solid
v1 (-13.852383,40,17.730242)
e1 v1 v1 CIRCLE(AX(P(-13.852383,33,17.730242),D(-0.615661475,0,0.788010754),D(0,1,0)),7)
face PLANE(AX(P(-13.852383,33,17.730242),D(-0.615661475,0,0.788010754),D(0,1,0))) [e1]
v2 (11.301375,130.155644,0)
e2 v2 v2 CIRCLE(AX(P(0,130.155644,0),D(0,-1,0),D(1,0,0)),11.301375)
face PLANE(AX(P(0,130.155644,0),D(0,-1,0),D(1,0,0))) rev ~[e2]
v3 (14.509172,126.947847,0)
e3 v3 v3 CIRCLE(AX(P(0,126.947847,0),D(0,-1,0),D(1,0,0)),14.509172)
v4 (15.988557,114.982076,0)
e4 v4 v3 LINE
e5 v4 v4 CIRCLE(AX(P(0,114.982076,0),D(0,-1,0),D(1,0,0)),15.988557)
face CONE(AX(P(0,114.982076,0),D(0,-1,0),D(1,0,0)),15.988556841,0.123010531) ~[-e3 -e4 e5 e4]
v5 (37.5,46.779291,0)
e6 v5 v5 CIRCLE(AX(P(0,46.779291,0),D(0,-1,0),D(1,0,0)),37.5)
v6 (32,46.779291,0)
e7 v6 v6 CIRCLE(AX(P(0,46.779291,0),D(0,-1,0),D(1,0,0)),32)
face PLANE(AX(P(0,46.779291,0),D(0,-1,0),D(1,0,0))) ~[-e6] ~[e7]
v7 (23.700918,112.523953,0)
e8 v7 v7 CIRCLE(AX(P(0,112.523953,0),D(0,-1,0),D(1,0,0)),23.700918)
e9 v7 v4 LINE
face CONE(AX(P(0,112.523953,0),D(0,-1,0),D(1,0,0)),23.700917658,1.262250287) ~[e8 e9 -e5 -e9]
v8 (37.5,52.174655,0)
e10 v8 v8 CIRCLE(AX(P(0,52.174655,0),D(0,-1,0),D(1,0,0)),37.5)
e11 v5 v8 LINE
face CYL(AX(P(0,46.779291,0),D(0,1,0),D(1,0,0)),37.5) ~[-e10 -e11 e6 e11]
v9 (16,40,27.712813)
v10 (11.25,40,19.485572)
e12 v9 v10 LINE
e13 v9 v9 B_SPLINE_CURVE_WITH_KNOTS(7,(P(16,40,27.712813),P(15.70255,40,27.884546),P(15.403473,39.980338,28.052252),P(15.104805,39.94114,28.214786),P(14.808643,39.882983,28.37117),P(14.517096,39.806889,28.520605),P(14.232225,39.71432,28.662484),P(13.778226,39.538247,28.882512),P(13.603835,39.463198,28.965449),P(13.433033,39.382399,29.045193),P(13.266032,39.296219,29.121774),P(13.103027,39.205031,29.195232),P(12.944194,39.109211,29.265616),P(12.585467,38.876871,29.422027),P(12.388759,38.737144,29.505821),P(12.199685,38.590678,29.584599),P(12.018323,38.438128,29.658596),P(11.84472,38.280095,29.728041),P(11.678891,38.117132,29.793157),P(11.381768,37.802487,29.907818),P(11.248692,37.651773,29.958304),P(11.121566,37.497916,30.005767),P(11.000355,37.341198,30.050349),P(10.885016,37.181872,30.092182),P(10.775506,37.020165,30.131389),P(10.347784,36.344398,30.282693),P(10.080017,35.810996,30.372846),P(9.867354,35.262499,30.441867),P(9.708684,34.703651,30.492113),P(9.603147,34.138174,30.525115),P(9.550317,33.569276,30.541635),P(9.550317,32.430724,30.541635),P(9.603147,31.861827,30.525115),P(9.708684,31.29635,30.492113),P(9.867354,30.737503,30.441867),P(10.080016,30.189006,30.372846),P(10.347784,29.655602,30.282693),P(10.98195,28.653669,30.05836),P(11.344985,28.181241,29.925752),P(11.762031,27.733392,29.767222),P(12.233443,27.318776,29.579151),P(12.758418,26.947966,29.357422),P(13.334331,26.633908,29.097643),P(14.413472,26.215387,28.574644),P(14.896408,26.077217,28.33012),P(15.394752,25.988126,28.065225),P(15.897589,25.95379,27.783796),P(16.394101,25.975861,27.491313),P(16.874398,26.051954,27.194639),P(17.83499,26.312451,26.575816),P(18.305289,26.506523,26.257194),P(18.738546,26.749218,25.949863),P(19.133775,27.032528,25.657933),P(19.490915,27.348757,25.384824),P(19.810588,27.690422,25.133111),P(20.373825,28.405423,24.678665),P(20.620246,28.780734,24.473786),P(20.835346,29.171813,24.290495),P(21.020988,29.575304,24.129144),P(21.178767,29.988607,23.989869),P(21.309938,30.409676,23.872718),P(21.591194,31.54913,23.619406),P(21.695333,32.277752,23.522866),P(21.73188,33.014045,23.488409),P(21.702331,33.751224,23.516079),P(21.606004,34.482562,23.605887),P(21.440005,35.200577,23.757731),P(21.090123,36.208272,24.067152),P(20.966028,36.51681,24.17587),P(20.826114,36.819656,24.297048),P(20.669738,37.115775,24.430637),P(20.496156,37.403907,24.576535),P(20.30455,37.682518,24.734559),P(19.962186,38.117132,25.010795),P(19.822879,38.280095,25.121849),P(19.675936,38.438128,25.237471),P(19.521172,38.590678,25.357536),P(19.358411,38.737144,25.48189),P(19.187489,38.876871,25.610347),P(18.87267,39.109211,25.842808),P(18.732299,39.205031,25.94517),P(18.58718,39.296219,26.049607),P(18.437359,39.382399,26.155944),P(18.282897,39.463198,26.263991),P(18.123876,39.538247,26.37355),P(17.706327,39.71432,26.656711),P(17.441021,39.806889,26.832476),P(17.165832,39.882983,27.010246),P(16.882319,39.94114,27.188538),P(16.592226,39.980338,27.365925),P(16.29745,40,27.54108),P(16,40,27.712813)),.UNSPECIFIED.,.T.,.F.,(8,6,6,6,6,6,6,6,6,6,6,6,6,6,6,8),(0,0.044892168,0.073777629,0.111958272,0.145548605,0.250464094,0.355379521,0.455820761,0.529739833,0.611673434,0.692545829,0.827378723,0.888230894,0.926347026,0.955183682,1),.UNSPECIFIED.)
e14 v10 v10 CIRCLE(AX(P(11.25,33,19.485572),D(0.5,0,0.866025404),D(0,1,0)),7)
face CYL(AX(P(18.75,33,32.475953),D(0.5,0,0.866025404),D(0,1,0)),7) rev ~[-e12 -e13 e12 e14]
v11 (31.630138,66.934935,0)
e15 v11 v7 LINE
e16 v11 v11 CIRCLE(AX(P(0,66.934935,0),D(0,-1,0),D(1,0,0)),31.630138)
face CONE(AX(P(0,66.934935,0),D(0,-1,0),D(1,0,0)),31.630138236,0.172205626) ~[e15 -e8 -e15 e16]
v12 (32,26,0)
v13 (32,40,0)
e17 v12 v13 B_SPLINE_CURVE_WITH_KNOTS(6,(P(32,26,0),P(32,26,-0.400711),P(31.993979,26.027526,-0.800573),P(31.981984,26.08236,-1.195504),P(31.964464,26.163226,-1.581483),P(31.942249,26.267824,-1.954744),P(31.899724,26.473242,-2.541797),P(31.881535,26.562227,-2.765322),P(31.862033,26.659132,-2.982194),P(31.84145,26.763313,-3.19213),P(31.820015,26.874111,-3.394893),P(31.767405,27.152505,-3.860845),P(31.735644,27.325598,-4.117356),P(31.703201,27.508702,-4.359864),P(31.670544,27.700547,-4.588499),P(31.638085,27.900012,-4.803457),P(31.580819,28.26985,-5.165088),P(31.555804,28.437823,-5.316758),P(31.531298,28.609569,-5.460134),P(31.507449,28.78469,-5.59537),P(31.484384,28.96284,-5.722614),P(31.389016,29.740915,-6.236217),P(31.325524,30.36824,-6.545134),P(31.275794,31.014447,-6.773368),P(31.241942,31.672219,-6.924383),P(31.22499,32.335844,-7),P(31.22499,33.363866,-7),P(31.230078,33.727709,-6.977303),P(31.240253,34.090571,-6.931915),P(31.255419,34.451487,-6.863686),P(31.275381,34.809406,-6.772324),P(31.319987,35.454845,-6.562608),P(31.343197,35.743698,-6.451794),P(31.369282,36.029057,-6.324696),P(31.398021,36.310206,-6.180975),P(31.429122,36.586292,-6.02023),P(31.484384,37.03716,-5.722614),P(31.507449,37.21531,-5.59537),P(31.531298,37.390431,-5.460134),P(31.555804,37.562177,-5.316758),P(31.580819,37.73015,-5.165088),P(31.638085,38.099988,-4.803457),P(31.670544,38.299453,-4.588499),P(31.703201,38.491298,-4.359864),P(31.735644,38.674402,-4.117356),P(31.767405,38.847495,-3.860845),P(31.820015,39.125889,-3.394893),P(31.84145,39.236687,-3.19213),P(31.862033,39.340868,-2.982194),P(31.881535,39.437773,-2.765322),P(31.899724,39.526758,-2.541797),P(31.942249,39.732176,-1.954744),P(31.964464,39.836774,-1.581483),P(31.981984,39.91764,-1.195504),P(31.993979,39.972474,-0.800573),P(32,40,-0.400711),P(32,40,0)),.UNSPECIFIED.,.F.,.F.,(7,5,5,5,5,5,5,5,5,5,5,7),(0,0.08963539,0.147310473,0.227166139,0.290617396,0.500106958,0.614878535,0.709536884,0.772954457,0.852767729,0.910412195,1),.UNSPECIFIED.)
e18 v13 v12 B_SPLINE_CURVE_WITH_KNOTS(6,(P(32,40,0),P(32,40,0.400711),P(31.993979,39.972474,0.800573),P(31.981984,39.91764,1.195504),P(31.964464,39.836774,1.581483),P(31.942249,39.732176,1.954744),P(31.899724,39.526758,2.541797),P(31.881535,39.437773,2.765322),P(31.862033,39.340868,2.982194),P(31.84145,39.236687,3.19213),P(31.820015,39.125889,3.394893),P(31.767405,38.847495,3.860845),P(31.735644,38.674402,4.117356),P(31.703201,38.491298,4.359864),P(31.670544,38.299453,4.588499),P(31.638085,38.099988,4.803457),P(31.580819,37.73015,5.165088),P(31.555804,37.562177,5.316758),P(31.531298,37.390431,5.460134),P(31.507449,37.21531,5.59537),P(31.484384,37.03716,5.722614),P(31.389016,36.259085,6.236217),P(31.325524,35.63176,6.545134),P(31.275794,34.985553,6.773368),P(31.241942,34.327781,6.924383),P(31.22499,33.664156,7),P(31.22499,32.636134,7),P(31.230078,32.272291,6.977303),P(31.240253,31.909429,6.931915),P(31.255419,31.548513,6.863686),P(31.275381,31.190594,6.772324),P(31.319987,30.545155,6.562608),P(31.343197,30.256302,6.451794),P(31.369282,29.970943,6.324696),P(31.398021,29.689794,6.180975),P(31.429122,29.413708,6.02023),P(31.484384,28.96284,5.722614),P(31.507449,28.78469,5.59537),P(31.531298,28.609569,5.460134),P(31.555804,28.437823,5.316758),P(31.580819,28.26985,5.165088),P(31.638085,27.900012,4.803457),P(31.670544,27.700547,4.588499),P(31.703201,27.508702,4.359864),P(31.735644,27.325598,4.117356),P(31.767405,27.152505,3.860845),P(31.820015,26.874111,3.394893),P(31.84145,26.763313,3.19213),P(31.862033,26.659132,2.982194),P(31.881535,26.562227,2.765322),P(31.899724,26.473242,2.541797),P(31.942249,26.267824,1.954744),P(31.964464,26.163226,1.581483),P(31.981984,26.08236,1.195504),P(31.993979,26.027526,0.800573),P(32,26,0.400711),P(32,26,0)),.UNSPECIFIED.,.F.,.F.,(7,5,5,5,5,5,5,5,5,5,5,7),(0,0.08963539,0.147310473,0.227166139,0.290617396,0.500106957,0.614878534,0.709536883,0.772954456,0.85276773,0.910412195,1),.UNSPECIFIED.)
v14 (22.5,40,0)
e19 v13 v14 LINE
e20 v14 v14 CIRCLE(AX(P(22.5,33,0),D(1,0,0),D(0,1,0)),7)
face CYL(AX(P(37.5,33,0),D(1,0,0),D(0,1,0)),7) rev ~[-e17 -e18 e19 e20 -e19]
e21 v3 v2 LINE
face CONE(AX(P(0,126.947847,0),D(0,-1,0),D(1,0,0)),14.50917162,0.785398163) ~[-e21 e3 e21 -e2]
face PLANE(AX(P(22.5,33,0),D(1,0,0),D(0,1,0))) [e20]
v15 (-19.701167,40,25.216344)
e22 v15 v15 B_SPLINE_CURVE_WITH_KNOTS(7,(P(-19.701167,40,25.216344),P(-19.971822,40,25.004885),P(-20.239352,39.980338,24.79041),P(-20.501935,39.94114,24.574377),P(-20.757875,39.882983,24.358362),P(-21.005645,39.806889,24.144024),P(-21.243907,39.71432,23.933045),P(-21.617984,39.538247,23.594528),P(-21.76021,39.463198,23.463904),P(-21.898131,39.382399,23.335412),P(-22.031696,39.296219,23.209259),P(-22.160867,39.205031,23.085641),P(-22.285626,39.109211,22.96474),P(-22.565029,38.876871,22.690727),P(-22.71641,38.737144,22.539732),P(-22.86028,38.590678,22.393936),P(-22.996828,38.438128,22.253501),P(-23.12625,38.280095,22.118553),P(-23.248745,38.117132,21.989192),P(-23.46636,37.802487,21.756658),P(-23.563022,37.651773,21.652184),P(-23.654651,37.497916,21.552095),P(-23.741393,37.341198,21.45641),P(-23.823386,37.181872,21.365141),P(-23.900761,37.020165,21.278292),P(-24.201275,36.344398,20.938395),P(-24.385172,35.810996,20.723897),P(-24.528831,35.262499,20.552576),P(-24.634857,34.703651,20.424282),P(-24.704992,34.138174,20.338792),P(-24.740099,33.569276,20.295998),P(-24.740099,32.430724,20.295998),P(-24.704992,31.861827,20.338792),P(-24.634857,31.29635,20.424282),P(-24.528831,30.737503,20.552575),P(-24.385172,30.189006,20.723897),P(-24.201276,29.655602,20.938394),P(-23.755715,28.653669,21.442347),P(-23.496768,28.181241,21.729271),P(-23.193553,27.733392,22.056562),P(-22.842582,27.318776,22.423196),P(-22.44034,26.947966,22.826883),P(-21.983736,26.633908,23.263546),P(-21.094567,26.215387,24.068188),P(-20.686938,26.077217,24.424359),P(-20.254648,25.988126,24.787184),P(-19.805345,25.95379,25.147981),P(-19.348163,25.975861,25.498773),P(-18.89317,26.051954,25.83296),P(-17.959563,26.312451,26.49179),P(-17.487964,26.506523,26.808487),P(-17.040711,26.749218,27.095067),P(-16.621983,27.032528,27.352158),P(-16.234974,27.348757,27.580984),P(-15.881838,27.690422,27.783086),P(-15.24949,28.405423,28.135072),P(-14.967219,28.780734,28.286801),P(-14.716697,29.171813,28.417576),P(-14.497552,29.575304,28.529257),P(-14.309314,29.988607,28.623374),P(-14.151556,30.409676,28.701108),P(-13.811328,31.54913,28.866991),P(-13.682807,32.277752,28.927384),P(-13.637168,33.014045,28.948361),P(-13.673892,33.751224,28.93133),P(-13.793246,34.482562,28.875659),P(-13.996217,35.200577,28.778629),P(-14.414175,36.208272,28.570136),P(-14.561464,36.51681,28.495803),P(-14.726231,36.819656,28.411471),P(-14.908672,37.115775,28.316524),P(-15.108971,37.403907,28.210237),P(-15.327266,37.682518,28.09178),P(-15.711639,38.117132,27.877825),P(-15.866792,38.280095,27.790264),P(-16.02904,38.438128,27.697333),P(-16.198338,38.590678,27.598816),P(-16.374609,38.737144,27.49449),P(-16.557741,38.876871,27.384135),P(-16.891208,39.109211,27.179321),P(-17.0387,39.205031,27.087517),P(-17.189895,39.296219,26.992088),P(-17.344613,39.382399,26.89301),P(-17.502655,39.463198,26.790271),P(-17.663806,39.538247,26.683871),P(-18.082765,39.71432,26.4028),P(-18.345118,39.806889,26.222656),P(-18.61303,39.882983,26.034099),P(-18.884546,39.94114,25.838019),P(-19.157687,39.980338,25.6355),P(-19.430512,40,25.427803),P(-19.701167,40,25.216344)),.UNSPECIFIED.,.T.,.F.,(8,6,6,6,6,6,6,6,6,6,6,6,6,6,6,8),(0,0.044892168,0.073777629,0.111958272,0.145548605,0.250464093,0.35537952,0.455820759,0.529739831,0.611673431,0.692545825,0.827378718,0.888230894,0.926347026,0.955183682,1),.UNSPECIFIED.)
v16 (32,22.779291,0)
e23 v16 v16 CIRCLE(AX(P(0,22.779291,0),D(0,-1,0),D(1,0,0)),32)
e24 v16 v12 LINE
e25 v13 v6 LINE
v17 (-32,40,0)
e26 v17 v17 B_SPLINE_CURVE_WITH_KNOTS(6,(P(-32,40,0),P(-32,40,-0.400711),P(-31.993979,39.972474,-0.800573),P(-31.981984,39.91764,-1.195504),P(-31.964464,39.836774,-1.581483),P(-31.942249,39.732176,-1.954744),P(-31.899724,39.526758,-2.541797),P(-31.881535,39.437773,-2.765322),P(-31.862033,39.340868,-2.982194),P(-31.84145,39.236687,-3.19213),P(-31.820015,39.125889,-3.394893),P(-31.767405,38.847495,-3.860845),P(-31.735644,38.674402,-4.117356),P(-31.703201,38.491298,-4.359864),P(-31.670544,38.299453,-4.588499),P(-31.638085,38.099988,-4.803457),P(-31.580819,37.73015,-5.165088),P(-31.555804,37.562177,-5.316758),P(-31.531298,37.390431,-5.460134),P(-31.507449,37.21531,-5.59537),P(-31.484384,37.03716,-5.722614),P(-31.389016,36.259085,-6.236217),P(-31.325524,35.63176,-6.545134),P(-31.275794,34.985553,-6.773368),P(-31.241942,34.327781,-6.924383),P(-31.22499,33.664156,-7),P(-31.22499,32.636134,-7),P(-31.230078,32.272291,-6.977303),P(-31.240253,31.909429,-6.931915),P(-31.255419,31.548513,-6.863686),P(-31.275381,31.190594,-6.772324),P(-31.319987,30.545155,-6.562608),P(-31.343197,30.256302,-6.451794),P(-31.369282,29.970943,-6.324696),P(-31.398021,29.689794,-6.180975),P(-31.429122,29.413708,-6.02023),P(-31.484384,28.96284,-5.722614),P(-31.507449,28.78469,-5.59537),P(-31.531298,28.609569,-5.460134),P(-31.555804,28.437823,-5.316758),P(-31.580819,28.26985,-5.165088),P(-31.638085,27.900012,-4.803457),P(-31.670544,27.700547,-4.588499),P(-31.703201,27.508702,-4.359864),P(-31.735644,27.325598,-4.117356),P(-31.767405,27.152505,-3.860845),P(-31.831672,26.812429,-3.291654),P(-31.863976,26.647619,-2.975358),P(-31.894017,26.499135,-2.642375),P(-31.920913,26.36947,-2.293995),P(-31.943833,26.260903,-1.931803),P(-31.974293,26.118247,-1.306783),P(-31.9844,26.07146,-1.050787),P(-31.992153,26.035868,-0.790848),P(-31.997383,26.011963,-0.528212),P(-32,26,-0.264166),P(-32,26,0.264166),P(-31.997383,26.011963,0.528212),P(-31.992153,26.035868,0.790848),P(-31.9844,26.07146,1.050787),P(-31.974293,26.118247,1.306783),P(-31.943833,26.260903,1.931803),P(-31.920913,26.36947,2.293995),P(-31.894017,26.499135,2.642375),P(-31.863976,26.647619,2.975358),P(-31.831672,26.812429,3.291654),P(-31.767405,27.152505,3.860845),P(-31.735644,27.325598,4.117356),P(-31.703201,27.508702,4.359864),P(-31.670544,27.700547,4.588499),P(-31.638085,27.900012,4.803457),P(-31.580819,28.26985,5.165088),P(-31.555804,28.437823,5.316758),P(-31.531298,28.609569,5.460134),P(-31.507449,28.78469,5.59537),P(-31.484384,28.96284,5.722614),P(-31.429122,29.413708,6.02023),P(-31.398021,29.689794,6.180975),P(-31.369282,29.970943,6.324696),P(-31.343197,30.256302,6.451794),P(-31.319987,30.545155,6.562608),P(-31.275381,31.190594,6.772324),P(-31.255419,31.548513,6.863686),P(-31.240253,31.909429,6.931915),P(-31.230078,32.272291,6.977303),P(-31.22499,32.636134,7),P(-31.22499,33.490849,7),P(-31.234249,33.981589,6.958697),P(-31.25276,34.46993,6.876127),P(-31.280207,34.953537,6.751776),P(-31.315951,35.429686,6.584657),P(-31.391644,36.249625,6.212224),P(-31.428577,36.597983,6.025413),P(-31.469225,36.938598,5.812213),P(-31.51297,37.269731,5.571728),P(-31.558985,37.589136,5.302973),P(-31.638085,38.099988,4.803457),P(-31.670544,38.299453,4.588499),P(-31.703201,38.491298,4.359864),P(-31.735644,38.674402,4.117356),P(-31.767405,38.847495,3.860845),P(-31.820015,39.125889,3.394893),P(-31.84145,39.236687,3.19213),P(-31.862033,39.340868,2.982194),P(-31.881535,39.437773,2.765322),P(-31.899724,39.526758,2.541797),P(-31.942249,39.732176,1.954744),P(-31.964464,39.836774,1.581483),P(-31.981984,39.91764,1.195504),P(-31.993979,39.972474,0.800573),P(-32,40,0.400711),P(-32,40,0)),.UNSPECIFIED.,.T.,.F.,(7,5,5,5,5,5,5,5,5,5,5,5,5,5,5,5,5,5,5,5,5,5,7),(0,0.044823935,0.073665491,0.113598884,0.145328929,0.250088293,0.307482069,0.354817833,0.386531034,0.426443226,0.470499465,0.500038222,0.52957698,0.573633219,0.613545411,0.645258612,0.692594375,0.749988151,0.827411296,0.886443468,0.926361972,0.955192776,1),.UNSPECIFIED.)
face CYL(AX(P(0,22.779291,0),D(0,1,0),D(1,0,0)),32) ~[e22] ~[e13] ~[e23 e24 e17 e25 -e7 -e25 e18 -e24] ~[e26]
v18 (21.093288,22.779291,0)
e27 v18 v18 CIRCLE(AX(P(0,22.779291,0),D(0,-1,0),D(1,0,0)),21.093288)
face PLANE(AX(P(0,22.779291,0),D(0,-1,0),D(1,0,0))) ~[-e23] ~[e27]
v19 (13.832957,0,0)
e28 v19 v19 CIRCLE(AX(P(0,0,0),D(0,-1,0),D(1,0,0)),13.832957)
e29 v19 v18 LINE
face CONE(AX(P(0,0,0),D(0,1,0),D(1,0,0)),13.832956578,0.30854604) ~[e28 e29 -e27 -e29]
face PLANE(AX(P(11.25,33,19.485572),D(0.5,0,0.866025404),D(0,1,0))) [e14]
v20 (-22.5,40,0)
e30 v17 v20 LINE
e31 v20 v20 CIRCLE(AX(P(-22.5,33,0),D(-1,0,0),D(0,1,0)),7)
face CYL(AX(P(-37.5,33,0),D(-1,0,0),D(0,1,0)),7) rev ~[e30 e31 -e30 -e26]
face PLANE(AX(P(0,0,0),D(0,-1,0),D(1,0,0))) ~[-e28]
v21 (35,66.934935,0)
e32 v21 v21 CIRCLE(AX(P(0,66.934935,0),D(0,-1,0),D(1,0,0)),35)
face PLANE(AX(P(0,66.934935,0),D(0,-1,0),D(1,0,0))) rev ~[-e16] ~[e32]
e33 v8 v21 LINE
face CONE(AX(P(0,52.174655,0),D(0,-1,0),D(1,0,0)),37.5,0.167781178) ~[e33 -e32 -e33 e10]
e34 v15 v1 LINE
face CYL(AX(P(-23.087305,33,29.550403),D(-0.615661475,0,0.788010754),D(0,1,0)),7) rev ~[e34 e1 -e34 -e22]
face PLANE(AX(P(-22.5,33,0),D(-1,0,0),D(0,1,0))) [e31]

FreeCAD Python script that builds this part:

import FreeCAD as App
import Part
import Sketcher
Q = App.Units.Quantity

doc = App.newDocument("Part")
body = doc.addObject("PartDesign::Body", "Body")

# Sketch on XY plane
sketch1 = body.newObject("Sketcher::SketchObject", "Sketch")
sketch1.AttachmentSupport = (doc.getObject("XY_Plane"), [""])
sketch1.MapMode = "FlatFace"
sketch1.addGeometry([
    Part.LineSegment(App.Vector(0, 0, 0), App.Vector(13.8, 0, 0)),  # 0
    Part.LineSegment(App.Vector(13.8, 0, 0), App.Vector(21.1, 22.8, 0)),  # 1
    Part.LineSegment(App.Vector(21.1, 22.8, 0), App.Vector(32, 22.8, 0)),  # 2
    Part.LineSegment(App.Vector(32, 22.8, 0), App.Vector(32, 46.8, 0)),  # 3
    Part.LineSegment(App.Vector(32, 46.8, 0), App.Vector(37.5, 46.8, 0)),  # 4
    Part.LineSegment(App.Vector(37.5, 46.8, 0), App.Vector(37.5, 52.2, 0)),  # 5
    Part.LineSegment(App.Vector(37.5, 52.2, 0), App.Vector(35, 66.9, 0)),  # 6
    Part.LineSegment(App.Vector(35, 66.9, 0), App.Vector(31.6, 66.9, 0)),  # 7
    Part.LineSegment(App.Vector(31.6, 66.9, 0), App.Vector(23.7, 112.5, 0)),  # 8
    Part.LineSegment(App.Vector(23.7, 112.5, 0), App.Vector(16, 115, 0)),  # 9
    Part.LineSegment(App.Vector(16, 115, 0), App.Vector(14.5, 126.9, 0)),  # 10
    Part.LineSegment(App.Vector(14.5, 126.9, 0), App.Vector(11.3, 130.2, 0)),  # 11
    Part.LineSegment(App.Vector(11.3, 130.2, 0), App.Vector(0, 130.2, 0)),  # 12
    Part.LineSegment(App.Vector(0, 130.2, 0), App.Vector(0, 0, 0)),  # 13
], False)
sketch1.addConstraint([
    Sketcher.Constraint("Coincident", 0, 2, 1, 1),
    Sketcher.Constraint("Coincident", 1, 2, 2, 1),
    Sketcher.Constraint("Coincident", 2, 2, 3, 1),
    Sketcher.Constraint("Coincident", 3, 2, 4, 1),
    Sketcher.Constraint("Coincident", 4, 2, 5, 1),
    Sketcher.Constraint("Coincident", 5, 2, 6, 1),
    Sketcher.Constraint("Coincident", 6, 2, 7, 1),
    Sketcher.Constraint("Coincident", 7, 2, 8, 1),
    Sketcher.Constraint("Coincident", 8, 2, 9, 1),
    Sketcher.Constraint("Coincident", 9, 2, 10, 1),
    Sketcher.Constraint("Coincident", 10, 2, 11, 1),
    Sketcher.Constraint("Coincident", 11, 2, 12, 1),
    Sketcher.Constraint("Coincident", 12, 2, 13, 1),
    Sketcher.Constraint("Coincident", 13, 2, 0, 1),
    Sketcher.Constraint("Horizontal", 0),
    Sketcher.Constraint("Horizontal", 2),
    Sketcher.Constraint("Vertical", 3),
    Sketcher.Constraint("Horizontal", 4),
    Sketcher.Constraint("Vertical", 5),
    Sketcher.Constraint("Horizontal", 7),
    Sketcher.Constraint("Horizontal", 12),
    Sketcher.Constraint("Vertical", 13),
    Sketcher.Constraint("Coincident", 13, 2, -1, 1),
    Sketcher.Constraint("Perpendicular", 1, 9),
    Sketcher.Constraint("DistanceY", 3, 1, 3, 2, 24.0),
    Sketcher.Constraint("Angle", 11, Q("135 deg")),
    Sketcher.Constraint("DistanceX", 4, 1, 4, 2, 5.5),
    Sketcher.Constraint("DistanceX", -1, 1, 2, 2, 32.0),
    Sketcher.Constraint("DistanceX", -1, 1, 6, 2, 35.0),
    Sketcher.Constraint("Distance", 6, 14.970499),
    Sketcher.Constraint("DistanceX", 2, 1, 2, 2, 10.906712),
    Sketcher.Constraint("DistanceX", 7, 2, 7, 1, 3.369862),
    Sketcher.Constraint("Distance", 8, 46.273439),
    Sketcher.Constraint("Distance", 9, 8.09462),
    Sketcher.Constraint("Distance", 11, 4.53651),
    Sketcher.Constraint("DistanceX", 0, 1, 0, 2, 13.832957),
    Sketcher.Constraint("DistanceX", 12, 2, 12, 1, 11.301375),
    Sketcher.Constraint("DistanceY", 5, 1, 5, 2, 5.395365),
    Sketcher.Constraint("DistanceY", 13, 2, 13, 1, 130.155644),
    Sketcher.Constraint("DistanceY", -1, 1, 1, 2, 22.779291),
    Sketcher.Constraint("DistanceX", 8, 2, 7, 2, 7.929221),
])
revolution = body.newObject("PartDesign::Revolution", "Revolution")
revolution.Profile = sketch1
revolution.ReferenceAxis = (sketch1, ["V_Axis"])
revolution.Angle = 360

# Sketch on YZ plane
sketch2 = body.newObject("Sketcher::SketchObject", "Sketch001")
sketch2.AttachmentSupport = (doc.getObject("YZ_Plane"), [""])
sketch2.MapMode = "FlatFace"
sketch2.AttachmentOffset = App.Placement(App.Vector(0, 0, -37.5), App.Rotation())
sketch2.addGeometry(Part.Circle(App.Vector(33, 0, 0), App.Vector(0, 0, 1), 7), False)
sketch2.addConstraint([
    Sketcher.Constraint("PointOnObject", 0, 3, -1),
    Sketcher.Constraint("Diameter", 0, 14.0),
    Sketcher.Constraint("DistanceX", -1, 1, 0, 3, 33.0),
])
pocket1 = body.newObject("PartDesign::Pocket", "Pocket")
pocket1.Profile = sketch2
pocket1.Length = 15
pocket1.Reversed = True

# Sketch on an angled plane
sketch3 = body.newObject("Sketcher::SketchObject", "Sketch002")
sketch3.Placement = App.Placement(App.Vector(18.75, 0, 32.475953), App.Rotation(App.Vector(0, 1, 0), App.Vector(-0.866025404, 0, 0.5), App.Vector(0.5, 0, 0.866025404), "ZXY"))
sketch3.addGeometry(Part.Circle(App.Vector(33, 0, 0), App.Vector(0, 0, 1), 7), False)
sketch3.addConstraint([
    Sketcher.Constraint("PointOnObject", 0, 3, -1),
    Sketcher.Constraint("Diameter", 0, 14.0),
    Sketcher.Constraint("DistanceX", -1, 1, 0, 3, 33.0),
])
pocket2 = body.newObject("PartDesign::Pocket", "Pocket001")
pocket2.Profile = sketch3
pocket2.Length = 15

# Sketch on an angled plane
sketch4 = body.newObject("Sketcher::SketchObject", "Sketch003")
sketch4.Placement = App.Placement(App.Vector(-23.087305, 0, 29.550403), App.Rotation(App.Vector(0, 1, 0), App.Vector(-0.788010754, 0, -0.615661475), App.Vector(-0.615661475, 0, 0.788010754), "ZXY"))
sketch4.addGeometry(Part.Circle(App.Vector(33, 0, 0), App.Vector(0, 0, 1), 7), False)
sketch4.addConstraint([
    Sketcher.Constraint("PointOnObject", 0, 3, -1),
    Sketcher.Constraint("Diameter", 0, 14.0),
    Sketcher.Constraint("DistanceX", -1, 1, 0, 3, 33.0),
])
pocket3 = body.newObject("PartDesign::Pocket", "Pocket002")
pocket3.Profile = sketch4
pocket3.Length = 15

# Sketch on YZ plane
sketch5 = body.newObject("Sketcher::SketchObject", "Sketch004")
sketch5.AttachmentSupport = (doc.getObject("YZ_Plane"), [""])
sketch5.MapMode = "FlatFace"
sketch5.AttachmentOffset = App.Placement(App.Vector(0, 0, 37.5), App.Rotation())
sketch5.addGeometry(Part.Circle(App.Vector(33, 0, 0), App.Vector(0, 0, 1), 7), False)
sketch5.addConstraint([
    Sketcher.Constraint("PointOnObject", 0, 3, -1),
    Sketcher.Constraint("Diameter", 0, 14.0),
    Sketcher.Constraint("DistanceX", -1, 1, 0, 3, 33.0),
])
pocket4 = body.newObject("PartDesign::Pocket", "Pocket003")
pocket4.Profile = sketch5
pocket4.Length = 15

doc.recompute()
